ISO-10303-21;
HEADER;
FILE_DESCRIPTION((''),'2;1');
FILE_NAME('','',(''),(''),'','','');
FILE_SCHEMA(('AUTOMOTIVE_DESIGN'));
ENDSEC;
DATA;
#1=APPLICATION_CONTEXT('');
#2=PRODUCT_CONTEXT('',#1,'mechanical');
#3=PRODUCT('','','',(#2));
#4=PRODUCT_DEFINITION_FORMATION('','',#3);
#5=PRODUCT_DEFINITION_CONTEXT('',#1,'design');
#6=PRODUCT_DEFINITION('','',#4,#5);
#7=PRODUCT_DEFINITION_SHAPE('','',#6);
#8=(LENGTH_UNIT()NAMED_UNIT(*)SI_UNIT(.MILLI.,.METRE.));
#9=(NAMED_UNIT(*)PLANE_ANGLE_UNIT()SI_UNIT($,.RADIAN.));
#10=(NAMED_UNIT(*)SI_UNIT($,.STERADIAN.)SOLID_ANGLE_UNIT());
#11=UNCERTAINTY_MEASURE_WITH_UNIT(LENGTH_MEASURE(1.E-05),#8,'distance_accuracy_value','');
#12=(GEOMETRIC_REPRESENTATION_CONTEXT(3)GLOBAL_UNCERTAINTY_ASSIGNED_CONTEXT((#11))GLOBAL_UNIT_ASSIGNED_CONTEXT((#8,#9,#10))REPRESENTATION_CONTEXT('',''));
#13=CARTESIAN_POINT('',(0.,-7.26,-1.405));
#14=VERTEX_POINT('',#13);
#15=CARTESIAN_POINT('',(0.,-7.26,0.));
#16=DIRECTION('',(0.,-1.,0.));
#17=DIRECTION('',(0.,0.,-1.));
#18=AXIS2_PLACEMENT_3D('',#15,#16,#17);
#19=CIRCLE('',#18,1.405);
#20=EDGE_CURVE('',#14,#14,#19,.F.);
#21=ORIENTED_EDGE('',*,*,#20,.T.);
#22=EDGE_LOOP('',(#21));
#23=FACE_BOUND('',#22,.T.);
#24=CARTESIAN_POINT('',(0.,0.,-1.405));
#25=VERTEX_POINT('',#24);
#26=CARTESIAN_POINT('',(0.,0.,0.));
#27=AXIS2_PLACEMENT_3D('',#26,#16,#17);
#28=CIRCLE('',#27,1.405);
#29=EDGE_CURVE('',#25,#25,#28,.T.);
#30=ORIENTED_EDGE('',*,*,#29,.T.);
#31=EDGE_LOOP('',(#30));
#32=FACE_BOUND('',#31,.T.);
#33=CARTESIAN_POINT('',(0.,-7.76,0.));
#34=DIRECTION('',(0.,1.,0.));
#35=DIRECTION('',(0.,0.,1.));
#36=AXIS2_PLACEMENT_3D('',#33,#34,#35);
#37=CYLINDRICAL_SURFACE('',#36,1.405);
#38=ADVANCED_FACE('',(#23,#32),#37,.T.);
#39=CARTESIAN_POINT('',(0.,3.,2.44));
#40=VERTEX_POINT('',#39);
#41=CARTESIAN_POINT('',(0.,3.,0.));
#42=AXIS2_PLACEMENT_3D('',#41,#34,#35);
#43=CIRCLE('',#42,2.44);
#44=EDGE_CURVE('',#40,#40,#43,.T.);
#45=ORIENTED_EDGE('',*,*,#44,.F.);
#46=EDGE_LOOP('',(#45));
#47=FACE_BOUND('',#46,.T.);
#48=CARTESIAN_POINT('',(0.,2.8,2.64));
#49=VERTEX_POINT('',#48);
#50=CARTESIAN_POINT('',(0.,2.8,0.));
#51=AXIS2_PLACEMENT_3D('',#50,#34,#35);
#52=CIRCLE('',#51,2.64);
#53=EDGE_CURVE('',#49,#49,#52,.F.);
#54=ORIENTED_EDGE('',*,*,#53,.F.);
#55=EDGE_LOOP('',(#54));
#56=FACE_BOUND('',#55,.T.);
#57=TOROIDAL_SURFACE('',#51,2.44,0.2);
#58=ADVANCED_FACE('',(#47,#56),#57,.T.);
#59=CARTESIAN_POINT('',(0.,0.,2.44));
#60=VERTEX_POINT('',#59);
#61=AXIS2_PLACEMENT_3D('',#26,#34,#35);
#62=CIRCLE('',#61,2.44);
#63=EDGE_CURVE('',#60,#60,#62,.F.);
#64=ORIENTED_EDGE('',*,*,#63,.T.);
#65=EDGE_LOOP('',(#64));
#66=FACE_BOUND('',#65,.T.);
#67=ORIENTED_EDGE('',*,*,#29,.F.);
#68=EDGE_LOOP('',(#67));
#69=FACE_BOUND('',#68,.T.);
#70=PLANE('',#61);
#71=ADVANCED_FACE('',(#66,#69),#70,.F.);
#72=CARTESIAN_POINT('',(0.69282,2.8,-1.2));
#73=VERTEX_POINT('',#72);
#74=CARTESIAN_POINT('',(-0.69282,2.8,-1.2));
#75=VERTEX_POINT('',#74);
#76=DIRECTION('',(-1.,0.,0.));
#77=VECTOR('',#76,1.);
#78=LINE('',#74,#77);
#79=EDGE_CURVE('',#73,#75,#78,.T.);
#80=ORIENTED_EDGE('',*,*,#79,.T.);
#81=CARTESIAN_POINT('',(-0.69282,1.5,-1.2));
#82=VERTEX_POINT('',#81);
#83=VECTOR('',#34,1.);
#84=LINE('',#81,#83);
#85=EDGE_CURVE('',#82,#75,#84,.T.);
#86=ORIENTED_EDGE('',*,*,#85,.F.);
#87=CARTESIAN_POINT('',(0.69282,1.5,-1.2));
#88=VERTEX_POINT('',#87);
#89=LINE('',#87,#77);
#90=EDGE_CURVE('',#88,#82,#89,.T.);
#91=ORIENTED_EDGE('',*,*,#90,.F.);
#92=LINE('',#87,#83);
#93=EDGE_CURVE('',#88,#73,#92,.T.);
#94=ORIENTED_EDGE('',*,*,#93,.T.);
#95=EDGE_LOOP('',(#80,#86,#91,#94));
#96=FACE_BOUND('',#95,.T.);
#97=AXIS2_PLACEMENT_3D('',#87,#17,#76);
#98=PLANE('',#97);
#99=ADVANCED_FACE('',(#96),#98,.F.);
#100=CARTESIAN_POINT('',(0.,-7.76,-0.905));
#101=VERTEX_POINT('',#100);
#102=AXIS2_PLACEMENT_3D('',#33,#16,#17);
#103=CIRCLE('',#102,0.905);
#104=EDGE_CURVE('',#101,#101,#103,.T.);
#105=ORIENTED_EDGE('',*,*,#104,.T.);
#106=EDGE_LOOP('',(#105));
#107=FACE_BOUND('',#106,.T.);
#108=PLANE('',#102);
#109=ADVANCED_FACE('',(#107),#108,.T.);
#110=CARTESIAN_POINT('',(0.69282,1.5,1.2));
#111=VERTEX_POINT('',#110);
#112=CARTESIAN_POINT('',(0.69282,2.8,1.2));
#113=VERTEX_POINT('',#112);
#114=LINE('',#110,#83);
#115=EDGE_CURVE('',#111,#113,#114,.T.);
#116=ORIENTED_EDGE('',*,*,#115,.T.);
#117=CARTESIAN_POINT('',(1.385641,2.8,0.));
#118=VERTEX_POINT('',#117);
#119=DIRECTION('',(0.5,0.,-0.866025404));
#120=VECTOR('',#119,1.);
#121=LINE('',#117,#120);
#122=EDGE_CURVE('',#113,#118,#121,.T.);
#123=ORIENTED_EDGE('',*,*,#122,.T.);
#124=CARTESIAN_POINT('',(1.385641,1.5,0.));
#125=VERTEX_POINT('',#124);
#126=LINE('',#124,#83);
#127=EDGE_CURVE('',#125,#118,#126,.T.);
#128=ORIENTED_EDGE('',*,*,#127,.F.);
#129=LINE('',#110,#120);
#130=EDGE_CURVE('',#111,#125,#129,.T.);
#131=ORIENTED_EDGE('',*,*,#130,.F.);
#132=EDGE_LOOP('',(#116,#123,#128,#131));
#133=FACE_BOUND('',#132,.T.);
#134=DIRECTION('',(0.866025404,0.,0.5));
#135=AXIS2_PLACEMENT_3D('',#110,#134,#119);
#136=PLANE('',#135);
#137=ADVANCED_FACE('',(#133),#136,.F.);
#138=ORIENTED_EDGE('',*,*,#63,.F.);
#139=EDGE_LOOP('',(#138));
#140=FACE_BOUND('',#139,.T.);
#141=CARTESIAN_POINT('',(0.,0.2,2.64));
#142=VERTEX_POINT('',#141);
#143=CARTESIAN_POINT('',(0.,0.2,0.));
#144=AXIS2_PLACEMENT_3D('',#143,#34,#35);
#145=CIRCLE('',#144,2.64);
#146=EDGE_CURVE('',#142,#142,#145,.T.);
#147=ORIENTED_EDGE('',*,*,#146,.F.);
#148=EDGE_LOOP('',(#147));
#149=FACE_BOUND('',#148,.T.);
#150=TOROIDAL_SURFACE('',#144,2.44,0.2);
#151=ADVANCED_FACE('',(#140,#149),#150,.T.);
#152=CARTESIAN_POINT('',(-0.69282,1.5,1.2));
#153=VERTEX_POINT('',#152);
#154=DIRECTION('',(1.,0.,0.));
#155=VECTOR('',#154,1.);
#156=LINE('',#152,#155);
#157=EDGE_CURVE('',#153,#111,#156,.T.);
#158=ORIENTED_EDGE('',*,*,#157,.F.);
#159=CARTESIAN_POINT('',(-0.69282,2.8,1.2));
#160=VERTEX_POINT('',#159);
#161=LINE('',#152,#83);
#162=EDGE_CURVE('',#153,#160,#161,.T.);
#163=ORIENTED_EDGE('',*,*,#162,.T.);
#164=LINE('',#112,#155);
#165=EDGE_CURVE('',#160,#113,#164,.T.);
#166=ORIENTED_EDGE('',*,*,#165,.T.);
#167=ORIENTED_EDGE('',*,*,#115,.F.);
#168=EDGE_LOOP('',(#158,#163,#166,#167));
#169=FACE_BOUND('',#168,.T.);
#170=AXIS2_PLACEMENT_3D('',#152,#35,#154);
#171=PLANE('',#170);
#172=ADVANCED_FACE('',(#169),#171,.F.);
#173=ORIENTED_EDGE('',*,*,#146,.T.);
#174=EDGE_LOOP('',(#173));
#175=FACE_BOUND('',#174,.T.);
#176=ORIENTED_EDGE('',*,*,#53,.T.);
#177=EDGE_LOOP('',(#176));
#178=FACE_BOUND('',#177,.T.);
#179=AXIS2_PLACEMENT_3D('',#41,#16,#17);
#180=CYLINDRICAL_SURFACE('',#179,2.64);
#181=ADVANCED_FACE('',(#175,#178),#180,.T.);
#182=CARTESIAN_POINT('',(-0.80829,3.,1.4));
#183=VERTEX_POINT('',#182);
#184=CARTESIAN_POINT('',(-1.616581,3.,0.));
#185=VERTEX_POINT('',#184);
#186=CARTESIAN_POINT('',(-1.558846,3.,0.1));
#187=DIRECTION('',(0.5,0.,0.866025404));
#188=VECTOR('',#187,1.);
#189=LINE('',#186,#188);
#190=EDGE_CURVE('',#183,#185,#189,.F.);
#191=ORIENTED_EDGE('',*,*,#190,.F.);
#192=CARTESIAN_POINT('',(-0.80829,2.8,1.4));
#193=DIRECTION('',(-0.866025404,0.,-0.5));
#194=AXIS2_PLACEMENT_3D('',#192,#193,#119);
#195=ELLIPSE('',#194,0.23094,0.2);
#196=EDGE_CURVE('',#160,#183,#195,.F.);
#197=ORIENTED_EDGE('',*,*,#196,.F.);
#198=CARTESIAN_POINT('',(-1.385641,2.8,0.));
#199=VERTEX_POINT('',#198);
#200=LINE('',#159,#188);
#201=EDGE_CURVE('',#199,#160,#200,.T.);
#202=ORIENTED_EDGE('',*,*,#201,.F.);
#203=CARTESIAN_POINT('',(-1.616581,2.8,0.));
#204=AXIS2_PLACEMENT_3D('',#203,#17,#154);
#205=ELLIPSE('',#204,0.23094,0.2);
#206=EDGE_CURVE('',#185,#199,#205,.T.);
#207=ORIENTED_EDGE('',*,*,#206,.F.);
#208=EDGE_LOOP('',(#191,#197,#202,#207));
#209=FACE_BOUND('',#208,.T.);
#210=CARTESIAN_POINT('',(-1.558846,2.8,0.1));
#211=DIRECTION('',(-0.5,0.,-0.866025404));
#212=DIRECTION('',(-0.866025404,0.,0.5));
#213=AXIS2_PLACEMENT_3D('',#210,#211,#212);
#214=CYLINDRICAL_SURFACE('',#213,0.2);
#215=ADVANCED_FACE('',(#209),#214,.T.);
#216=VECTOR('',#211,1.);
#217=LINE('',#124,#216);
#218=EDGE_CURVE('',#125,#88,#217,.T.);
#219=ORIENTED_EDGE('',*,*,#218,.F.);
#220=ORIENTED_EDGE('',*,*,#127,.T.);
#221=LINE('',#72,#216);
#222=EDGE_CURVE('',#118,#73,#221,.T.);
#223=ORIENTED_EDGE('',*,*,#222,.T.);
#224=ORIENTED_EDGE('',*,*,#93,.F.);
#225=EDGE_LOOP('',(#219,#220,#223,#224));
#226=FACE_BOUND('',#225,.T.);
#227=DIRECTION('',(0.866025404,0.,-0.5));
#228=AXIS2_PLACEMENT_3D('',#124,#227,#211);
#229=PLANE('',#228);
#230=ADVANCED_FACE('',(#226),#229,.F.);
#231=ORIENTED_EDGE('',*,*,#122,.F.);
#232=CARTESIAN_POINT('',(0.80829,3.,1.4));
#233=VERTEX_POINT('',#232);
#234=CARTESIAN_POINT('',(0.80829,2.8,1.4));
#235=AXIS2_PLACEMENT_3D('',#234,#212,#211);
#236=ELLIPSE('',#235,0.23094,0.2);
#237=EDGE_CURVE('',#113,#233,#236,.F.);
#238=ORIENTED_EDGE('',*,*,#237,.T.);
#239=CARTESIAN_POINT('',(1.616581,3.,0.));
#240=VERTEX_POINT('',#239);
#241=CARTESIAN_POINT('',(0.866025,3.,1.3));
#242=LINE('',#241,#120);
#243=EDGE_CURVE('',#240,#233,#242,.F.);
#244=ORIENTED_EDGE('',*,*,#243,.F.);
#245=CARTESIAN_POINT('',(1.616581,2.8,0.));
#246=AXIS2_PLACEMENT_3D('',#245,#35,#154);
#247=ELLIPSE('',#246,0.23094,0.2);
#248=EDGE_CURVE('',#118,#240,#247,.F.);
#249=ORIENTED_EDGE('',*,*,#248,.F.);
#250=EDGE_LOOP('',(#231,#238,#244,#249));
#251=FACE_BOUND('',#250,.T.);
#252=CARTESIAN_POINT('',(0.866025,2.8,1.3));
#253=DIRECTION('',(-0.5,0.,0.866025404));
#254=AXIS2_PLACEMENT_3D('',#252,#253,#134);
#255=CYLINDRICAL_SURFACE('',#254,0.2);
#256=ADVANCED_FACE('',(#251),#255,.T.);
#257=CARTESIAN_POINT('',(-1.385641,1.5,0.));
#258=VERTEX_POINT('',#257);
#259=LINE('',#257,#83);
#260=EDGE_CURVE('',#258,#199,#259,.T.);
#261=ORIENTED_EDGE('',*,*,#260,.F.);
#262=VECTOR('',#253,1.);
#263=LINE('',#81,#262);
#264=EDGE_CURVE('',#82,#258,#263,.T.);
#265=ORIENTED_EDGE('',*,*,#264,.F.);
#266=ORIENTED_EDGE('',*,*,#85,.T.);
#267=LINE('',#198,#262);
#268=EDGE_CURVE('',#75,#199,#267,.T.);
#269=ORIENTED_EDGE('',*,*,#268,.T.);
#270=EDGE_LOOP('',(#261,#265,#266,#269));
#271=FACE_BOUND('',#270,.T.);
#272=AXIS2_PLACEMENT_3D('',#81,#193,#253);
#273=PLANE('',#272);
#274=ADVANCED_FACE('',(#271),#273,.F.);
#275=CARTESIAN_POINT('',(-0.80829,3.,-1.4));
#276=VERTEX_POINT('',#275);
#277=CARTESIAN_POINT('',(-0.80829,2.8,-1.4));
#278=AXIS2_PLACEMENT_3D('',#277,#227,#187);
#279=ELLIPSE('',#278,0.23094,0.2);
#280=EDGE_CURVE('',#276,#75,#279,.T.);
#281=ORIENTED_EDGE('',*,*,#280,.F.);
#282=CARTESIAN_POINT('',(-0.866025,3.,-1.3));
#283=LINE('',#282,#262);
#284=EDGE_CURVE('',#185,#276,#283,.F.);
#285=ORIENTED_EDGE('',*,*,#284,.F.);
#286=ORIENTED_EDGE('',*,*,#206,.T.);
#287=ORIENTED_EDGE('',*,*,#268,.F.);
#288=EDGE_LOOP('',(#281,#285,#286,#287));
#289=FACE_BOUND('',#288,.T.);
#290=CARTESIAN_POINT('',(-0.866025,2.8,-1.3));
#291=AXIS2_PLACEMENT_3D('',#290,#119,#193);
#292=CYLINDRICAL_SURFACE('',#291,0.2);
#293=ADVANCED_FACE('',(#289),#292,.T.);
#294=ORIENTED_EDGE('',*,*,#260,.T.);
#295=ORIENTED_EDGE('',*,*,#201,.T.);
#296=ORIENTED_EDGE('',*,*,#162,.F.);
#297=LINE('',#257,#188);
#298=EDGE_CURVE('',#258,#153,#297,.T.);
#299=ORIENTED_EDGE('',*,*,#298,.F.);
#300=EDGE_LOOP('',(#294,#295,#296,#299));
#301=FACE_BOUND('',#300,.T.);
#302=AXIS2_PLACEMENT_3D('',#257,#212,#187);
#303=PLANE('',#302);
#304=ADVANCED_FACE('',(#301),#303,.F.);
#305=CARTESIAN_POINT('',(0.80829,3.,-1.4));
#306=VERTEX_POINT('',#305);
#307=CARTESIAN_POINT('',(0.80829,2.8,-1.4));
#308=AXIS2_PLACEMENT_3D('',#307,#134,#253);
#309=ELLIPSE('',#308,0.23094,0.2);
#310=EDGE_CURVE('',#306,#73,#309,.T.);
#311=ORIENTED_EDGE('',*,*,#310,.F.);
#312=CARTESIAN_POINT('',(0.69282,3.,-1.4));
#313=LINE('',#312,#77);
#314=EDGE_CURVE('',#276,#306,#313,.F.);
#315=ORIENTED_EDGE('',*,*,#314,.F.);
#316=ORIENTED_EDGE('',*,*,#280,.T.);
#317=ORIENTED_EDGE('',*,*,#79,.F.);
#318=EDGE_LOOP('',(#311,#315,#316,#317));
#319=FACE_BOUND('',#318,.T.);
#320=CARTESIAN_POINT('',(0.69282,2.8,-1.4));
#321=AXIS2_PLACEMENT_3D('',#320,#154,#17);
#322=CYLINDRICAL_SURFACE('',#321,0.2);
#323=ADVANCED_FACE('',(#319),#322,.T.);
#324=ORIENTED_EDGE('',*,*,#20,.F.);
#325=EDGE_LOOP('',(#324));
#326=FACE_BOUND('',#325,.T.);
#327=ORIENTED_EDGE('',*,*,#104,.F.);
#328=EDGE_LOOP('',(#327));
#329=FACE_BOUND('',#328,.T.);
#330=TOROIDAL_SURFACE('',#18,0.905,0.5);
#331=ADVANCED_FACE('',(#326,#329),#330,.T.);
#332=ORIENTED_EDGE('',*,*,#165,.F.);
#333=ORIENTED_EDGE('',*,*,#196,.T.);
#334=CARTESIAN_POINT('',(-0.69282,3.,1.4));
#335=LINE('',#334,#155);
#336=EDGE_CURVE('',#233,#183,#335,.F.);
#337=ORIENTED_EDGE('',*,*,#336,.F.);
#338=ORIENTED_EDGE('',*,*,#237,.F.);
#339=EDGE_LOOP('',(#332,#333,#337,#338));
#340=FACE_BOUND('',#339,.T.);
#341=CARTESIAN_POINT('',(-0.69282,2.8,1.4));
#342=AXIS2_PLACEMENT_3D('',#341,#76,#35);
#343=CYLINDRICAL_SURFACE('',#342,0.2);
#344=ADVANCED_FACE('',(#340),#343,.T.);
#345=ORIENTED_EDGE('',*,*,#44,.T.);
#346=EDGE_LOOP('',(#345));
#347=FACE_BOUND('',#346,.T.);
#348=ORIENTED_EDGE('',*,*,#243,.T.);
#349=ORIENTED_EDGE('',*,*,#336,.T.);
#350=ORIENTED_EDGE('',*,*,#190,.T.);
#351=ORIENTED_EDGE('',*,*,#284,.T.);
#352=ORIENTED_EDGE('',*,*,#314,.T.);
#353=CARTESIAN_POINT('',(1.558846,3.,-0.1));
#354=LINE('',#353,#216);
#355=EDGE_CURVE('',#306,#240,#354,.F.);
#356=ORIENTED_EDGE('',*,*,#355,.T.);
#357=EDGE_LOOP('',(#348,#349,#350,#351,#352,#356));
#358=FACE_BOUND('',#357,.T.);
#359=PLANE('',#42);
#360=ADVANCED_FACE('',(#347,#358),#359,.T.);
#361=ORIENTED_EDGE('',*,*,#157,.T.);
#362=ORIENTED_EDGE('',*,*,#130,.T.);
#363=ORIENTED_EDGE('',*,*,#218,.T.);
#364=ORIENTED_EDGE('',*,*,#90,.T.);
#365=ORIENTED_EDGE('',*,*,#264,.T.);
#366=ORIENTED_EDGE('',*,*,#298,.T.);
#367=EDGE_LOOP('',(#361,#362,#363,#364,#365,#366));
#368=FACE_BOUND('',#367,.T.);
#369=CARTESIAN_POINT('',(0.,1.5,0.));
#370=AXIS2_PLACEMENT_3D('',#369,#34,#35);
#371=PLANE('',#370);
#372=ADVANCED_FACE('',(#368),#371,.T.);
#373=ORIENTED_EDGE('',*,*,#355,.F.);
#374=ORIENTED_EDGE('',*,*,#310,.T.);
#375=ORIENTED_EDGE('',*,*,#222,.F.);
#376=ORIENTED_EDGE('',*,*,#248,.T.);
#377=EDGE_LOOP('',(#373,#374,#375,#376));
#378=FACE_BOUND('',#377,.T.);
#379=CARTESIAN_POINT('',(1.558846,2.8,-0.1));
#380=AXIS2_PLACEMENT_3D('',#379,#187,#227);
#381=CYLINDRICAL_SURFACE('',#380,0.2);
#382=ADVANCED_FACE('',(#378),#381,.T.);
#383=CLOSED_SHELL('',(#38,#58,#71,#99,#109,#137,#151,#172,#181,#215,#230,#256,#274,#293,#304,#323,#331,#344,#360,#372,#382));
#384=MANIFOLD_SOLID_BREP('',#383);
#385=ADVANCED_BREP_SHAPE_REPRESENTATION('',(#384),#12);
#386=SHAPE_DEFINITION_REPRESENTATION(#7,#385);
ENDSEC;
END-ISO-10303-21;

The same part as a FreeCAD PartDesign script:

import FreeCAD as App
import Part
import Sketcher

V = App.Vector
Q = App.Units.Quantity


def edges_at(feature, points):
    """Names of the edges that pass closest to the given points."""
    edges = feature.Shape.Edges
    near = lambda p: min(range(len(edges)), key=lambda i: edges[i].distToShape(Part.Vertex(*p))[0])
    return sorted({f"Edge{near(p) + 1}" for p in points})


def add_polygon(sketch, points):
    """Adds a closed chain of lines whose ends are joined by coincident constraints."""
    first, n = sketch.GeometryCount, len(points)
    for a, b in zip(points, points[1:] + points[:1]):
        sketch.addGeometry(Part.LineSegment(App.Vector(*a, 0), App.Vector(*b, 0)), False)
    for i in range(n):
        sketch.addConstraint(Sketcher.Constraint("Coincident", first + i, 2, first + (i + 1) % n, 1))

doc = App.newDocument("Part")
body = doc.addObject("PartDesign::Body", "Body")

sketch1 = body.newObject("Sketcher::SketchObject", "Sketch")
sketch1.AttachmentSupport = (doc.getObject("XZ_Plane"), [""])
sketch1.MapMode = "FlatFace"
sketch1.addGeometry(Part.Circle(V(0, 0, 0), V(0, 0, 1), 2.6), False)
sketch1.addConstraint([
    Sketcher.Constraint("Coincident", 0, 3, -1, 1),
    Sketcher.Constraint("Diameter", 0, 5.28),
])
pad1 = body.newObject("PartDesign::Pad", "Pad")
pad1.Profile = sketch1
pad1.Length = 3
pad1.Reversed = True

sketch2 = body.newObject("Sketcher::SketchObject", "Sketch001")
sketch2.AttachmentSupport = (doc.getObject("XZ_Plane"), [""])
sketch2.MapMode = "FlatFace"
sketch2.addGeometry(Part.Circle(V(0, 0, 0), V(0, 0, 1), 1.4), False)
sketch2.addConstraint([
    Sketcher.Constraint("Coincident", 0, 3, -1, 1),
    Sketcher.Constraint("Diameter", 0, 2.81),
])
pad2 = body.newObject("PartDesign::Pad", "Pad001")
pad2.Profile = sketch2
pad2.Length = 7.76
doc.recompute()

fillet = body.newObject("PartDesign::Fillet", "Fillet")
fillet.Base = (pad2, edges_at(pad2, [(0, 0, -2.64), (0, 3, -2.64)]))
fillet.Radius = 0.2

sketch3 = body.newObject("Sketcher::SketchObject", "Sketch002")
sketch3.AttachmentSupport = (doc.getObject("XZ_Plane"), [""])
sketch3.MapMode = "FlatFace"
sketch3.AttachmentOffset = App.Placement(V(0, 0, -3), App.Rotation())
add_polygon(sketch3, [(1.4, 0), (0.7, -1.2), (-0.7, -1.2), (-1.4, 0), (-0.7, 1.2), (0.7, 1.2)])
sketch3.addConstraint([
    Sketcher.Constraint("Horizontal", 1),
    Sketcher.Constraint("Horizontal", 4),
    Sketcher.Constraint("Symmetric", 0, 2, 3, 2, -1, 1),
    Sketcher.Constraint("Symmetric", 2, 2, 5, 2, -1, 1),
    Sketcher.Constraint("PointOnObject", 2, 2, -1),
    Sketcher.Constraint("Parallel", 2, 5),
    Sketcher.Constraint("Vertical", 1, 2, 3, 2),
    Sketcher.Constraint("Angle", 0, Q("-120 deg")),
    Sketcher.Constraint("DistanceY", 0, 2, -1, 1, 1.2),
    Sketcher.Constraint("DistanceX", 1, 2, 1, 1, 1.385641),
])
pocket1 = body.newObject("PartDesign::Pocket", "Pocket")
pocket1.Profile = sketch3
pocket1.Length = 1.5
pocket1.Reversed = True
doc.recompute()

fillet2 = body.newObject("PartDesign::Fillet", "Fillet001")
fillet2.Base = (pocket1, edges_at(pocket1, [
    (1.039, 3, 0.6),
    (1.039, 3, -0.6),
    (0, 3, -1.2),
    (-1.039, 3, -0.6),
    (-1.039, 3, 0.6),
    (0, 3, 1.2),
]))
fillet2.Radius = 0.2
doc.recompute()

fillet3 = body.newObject("PartDesign::Fillet", "Fillet002")
fillet3.Base = (fillet2, edges_at(fillet2, [(0, -7.76, 1.405)]))
fillet3.Radius = 0.5

doc.recompute()
